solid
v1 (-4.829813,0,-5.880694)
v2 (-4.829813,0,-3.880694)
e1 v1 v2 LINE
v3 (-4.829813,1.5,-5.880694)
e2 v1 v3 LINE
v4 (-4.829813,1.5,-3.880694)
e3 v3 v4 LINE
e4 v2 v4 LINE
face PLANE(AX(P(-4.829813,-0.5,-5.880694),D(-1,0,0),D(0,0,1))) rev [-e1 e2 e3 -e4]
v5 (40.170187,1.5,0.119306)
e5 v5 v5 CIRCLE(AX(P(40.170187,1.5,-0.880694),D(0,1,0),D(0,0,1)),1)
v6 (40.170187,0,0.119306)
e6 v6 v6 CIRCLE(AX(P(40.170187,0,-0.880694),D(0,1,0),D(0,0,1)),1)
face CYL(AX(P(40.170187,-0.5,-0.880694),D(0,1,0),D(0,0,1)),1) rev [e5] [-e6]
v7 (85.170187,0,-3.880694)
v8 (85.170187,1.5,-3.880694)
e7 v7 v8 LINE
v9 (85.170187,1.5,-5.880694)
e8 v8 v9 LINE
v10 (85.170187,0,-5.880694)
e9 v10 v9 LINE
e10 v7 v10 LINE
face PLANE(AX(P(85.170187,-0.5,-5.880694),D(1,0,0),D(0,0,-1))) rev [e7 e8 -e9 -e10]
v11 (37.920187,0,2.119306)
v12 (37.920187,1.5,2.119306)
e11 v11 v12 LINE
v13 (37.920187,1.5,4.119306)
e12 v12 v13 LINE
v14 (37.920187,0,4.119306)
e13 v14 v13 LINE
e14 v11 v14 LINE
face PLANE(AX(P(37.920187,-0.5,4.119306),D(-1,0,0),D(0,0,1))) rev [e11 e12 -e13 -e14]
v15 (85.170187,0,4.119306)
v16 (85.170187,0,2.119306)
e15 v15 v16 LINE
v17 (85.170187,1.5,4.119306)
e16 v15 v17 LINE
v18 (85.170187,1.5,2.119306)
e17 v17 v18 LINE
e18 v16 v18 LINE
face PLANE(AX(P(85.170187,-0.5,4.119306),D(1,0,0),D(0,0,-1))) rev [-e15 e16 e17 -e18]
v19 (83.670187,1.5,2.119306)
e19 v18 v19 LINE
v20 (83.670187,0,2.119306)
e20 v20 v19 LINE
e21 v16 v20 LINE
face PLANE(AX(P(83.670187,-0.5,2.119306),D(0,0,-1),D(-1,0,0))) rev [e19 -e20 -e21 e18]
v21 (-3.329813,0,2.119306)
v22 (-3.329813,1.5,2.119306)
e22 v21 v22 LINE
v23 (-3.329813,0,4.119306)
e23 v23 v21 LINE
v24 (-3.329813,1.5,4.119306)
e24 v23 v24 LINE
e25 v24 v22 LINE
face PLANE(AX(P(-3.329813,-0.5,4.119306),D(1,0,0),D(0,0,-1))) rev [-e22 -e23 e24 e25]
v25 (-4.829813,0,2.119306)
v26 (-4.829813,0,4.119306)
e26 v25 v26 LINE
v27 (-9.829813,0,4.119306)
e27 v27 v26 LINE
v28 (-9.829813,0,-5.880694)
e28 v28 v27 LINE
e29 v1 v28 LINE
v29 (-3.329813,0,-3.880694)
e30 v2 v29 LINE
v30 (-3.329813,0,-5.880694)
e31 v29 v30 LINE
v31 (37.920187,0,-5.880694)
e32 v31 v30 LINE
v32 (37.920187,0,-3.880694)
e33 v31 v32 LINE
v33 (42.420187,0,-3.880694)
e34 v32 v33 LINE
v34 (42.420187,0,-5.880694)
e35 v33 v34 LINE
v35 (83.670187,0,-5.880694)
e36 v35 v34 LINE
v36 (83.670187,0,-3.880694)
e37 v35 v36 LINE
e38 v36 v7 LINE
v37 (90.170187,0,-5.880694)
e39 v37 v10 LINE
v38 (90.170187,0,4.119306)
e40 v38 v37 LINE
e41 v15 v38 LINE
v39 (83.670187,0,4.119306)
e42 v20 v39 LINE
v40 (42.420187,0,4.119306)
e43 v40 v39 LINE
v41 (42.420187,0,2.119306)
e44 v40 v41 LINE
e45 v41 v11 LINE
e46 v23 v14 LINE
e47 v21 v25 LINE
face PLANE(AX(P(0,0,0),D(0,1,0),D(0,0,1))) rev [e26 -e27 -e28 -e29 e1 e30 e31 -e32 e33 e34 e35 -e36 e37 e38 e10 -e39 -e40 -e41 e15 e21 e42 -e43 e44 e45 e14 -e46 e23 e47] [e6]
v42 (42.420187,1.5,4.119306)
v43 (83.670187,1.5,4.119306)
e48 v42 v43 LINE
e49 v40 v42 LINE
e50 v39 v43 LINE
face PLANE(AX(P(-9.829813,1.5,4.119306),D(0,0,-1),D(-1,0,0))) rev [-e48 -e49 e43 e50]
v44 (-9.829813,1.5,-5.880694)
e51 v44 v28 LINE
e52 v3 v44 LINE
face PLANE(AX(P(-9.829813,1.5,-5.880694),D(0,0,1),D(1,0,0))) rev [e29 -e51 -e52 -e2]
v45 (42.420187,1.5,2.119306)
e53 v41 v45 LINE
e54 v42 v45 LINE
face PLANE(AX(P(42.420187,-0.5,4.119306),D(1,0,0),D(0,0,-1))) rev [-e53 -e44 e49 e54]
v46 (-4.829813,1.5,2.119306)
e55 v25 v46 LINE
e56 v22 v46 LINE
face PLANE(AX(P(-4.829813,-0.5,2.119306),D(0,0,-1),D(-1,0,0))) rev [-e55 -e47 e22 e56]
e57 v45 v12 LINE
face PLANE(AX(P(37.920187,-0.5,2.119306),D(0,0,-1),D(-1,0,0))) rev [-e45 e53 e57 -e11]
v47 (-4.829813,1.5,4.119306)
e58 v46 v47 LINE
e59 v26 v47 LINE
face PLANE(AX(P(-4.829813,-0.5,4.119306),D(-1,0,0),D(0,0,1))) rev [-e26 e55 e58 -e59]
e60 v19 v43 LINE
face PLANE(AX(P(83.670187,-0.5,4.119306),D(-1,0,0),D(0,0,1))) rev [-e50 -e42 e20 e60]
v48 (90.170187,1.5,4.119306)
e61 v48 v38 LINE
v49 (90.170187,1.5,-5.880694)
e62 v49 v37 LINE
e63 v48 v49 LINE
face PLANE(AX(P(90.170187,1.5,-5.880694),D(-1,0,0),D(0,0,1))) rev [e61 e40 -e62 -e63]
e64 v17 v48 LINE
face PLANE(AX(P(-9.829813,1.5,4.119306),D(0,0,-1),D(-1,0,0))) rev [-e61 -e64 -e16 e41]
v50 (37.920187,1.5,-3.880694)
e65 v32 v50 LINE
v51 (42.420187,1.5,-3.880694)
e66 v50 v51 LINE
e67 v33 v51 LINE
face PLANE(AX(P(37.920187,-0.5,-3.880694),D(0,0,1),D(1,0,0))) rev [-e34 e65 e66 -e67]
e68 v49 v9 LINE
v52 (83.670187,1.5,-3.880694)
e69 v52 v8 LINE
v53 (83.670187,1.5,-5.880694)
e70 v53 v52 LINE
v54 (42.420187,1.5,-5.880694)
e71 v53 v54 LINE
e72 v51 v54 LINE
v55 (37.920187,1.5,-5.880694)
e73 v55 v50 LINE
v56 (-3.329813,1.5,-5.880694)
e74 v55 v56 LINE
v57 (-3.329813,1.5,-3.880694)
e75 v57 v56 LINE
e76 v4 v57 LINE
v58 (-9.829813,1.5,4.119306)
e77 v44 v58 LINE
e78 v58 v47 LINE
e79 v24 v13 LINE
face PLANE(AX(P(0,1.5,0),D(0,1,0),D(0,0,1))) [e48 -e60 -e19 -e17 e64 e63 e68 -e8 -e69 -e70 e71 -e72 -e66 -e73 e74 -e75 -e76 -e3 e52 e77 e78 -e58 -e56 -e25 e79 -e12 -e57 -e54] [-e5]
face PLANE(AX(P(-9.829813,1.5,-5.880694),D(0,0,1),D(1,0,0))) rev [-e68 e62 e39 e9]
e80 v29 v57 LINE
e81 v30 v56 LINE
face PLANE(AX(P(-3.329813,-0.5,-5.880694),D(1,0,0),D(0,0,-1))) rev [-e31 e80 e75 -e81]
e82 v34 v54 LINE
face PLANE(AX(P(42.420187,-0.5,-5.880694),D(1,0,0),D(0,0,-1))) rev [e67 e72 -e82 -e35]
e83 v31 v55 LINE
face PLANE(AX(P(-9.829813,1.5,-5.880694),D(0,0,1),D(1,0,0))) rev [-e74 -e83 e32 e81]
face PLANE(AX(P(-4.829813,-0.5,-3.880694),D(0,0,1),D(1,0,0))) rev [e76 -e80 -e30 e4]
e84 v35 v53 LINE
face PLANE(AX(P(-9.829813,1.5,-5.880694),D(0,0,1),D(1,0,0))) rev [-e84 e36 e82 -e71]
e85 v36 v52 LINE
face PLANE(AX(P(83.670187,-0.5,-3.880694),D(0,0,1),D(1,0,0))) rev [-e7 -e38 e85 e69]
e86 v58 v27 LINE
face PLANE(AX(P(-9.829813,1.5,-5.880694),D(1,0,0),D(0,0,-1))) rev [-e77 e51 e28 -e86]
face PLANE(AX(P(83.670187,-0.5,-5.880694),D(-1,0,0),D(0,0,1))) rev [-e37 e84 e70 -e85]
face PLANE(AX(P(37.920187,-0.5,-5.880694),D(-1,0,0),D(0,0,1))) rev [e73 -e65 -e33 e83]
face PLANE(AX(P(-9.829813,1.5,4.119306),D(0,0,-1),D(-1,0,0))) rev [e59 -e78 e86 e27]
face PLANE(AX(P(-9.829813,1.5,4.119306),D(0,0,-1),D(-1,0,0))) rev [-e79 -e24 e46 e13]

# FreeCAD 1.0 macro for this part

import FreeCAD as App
import Part
import Sketcher

V = App.Vector
Q = App.Units.Quantity


def add_polygon(sketch, points):
    """Adds a closed chain of lines whose ends are joined by coincident constraints."""
    first, n = sketch.GeometryCount, len(points)
    for a, b in zip(points, points[1:] + points[:1]):
        sketch.addGeometry(Part.LineSegment(App.Vector(*a, 0), App.Vector(*b, 0)), False)
    for i in range(n):
        sketch.addConstraint(Sketcher.Constraint("Coincident", first + i, 2, first + (i + 1) % n, 1))

doc = App.newDocument("Part")
body = doc.addObject("PartDesign::Body", "Body")

sketch1 = doc.addObject("Sketcher::SketchObject", "Sketch")
body.addObject(sketch1)
sketch1.AttachmentSupport = (doc.XZ_Plane, [""])
sketch1.MapMode = "FlatFace"
add_polygon(sketch1, [(-9.829813, -5.880694), (-9.829813, 4.119306), (90.170187, 4.119306), (90.170187, -5.880694)])
sketch1.addConstraint(Sketcher.Constraint("Vertical", 0))
sketch1.addConstraint(Sketcher.Constraint("Horizontal", 1))
sketch1.addConstraint(Sketcher.Constraint("Vertical", 2))
sketch1.addConstraint(Sketcher.Constraint("Horizontal", 3))
sketch1.addConstraint(Sketcher.Constraint("DistanceX", 1, 1, 1, 2, Q("100 mm")))
sketch1.addConstraint(Sketcher.Constraint("DistanceY", 0, 1, 0, 2, Q("10 mm")))
sketch1.addConstraint(Sketcher.Constraint("DistanceX", 0, 2, -1, 1, Q("9.829813 mm")))
sketch1.addConstraint(Sketcher.Constraint("DistanceY", -1, 1, 0, 2, Q("4.119306 mm")))
pad1 = doc.addObject("PartDesign::Pad", "Pad")
body.addObject(pad1)
pad1.Profile = sketch1
pad1.Length = 1.5
pad1.Reversed = True

sketch2 = doc.addObject("Sketcher::SketchObject", "Sketch001")
body.addObject(sketch2)
sketch2.AttachmentSupport = (doc.XZ_Plane, [""])
sketch2.MapMode = "FlatFace"
sketch2.AttachmentOffset = App.Placement(V(0, 0, -1.5), App.Rotation())
sketch2.addGeometry(Part.Circle(V(40.170187, -0.880694, 0), V(0, 0, 1), 1), False)
sketch2.addConstraint(Sketcher.Constraint("Diameter", 0, Q("2 mm")))
sketch2.addConstraint(Sketcher.Constraint("DistanceX", -1, 1, 0, 3, Q("40.170187 mm")))
sketch2.addConstraint(Sketcher.Constraint("DistanceY", 0, 3, -1, 1, Q("0.880694 mm")))
pocket1 = doc.addObject("PartDesign::Pocket", "Pocket")
body.addObject(pocket1)
pocket1.Profile = sketch2
pocket1.Length = 2
pocket1.Reversed = True

sketch3 = doc.addObject("Sketcher::SketchObject", "Sketch002")
body.addObject(sketch3)
sketch3.AttachmentSupport = (doc.XZ_Plane, [""])
sketch3.MapMode = "FlatFace"
sketch3.AttachmentOffset = App.Placement(V(0, 0, -1.5), App.Rotation())
add_polygon(sketch3, [(-4.829813, -5.880694), (-4.829813, -3.880694), (-3.329813, -3.880694), (-3.329813, -5.880694)])
add_polygon(sketch3, [(37.920187, -5.880694), (37.920187, -3.880694), (42.420187, -3.880694), (42.420187, -5.880694)])
add_polygon(sketch3, [(83.670187, -5.880694), (83.670187, -3.880694), (85.170187, -3.880694), (85.170187, -5.880694)])
add_polygon(sketch3, [(-4.829813, 2.119306), (-4.829813, 4.119306), (-3.329813, 4.119306), (-3.329813, 2.119306)])
add_polygon(sketch3, [(37.920187, 2.119306), (37.920187, 4.119306), (42.420187, 4.119306), (42.420187, 2.119306)])
add_polygon(sketch3, [(83.670187, 2.119306), (83.670187, 4.119306), (85.170187, 4.119306), (85.170187, 2.119306)])
sketch3.addConstraint(Sketcher.Constraint("Vertical", 0))
sketch3.addConstraint(Sketcher.Constraint("Horizontal", 1))
sketch3.addConstraint(Sketcher.Constraint("Vertical", 2))
sketch3.addConstraint(Sketcher.Constraint("Horizontal", 3))
sketch3.addConstraint(Sketcher.Constraint("Vertical", 4))
sketch3.addConstraint(Sketcher.Constraint("Horizontal", 5))
sketch3.addConstraint(Sketcher.Constraint("Vertical", 6))
sketch3.addConstraint(Sketcher.Constraint("Horizontal", 7))
sketch3.addConstraint(Sketcher.Constraint("Vertical", 8))
sketch3.addConstraint(Sketcher.Constraint("Horizontal", 9))
sketch3.addConstraint(Sketcher.Constraint("Vertical", 10))
sketch3.addConstraint(Sketcher.Constraint("Horizontal", 11))
sketch3.addConstraint(Sketcher.Constraint("Vertical", 12))
sketch3.addConstraint(Sketcher.Constraint("Horizontal", 13))
sketch3.addConstraint(Sketcher.Constraint("Vertical", 14))
sketch3.addConstraint(Sketcher.Constraint("Horizontal", 15))
sketch3.addConstraint(Sketcher.Constraint("Vertical", 16))
sketch3.addConstraint(Sketcher.Constraint("Horizontal", 17))
sketch3.addConstraint(Sketcher.Constraint("Vertical", 18))
sketch3.addConstraint(Sketcher.Constraint("Horizontal", 19))
sketch3.addConstraint(Sketcher.Constraint("Vertical", 20))
sketch3.addConstraint(Sketcher.Constraint("Horizontal", 21))
sketch3.addConstraint(Sketcher.Constraint("Vertical", 22))
sketch3.addConstraint(Sketcher.Constraint("Horizontal", 23))
sketch3.addConstraint(Sketcher.Constraint("Horizontal", 1, 2, 4, 2))
sketch3.addConstraint(Sketcher.Constraint("Horizontal", 3, 2, 6, 2))
sketch3.addConstraint(Sketcher.Constraint("Horizontal", 5, 2, 8, 2))
sketch3.addConstraint(Sketcher.Constraint("Horizontal", 7, 2, 10, 2))
sketch3.addConstraint(Sketcher.Constraint("Horizontal", 13, 2, 16, 2))
sketch3.addConstraint(Sketcher.Constraint("Horizontal", 15, 2, 18, 2))
sketch3.addConstraint(Sketcher.Constraint("Horizontal", 17, 2, 20, 2))
sketch3.addConstraint(Sketcher.Constraint("Horizontal", 19, 2, 22, 2))
sketch3.addConstraint(Sketcher.Constraint("Vertical", 3, 2, 12, 2))
sketch3.addConstraint(Sketcher.Constraint("Vertical", 2, 2, 13, 2))
sketch3.addConstraint(Sketcher.Constraint("Vertical", 7, 2, 16, 2))
sketch3.addConstraint(Sketcher.Constraint("Vertical", 6, 2, 17, 2))
sketch3.addConstraint(Sketcher.Constraint("Vertical", 11, 2, 20, 2))
sketch3.addConstraint(Sketcher.Constraint("Vertical", 10, 2, 21, 2))
sketch3.addConstraint(Sketcher.Constraint("Equal", 3, 9))
sketch3.addConstraint(Sketcher.Constraint("Equal", 10, 12))
sketch3.addConstraint(Sketcher.Constraint("DistanceY", 0, 1, 0, 2, Q("2 mm")))
sketch3.addConstraint(Sketcher.Constraint("DistanceX", 1, 1, 1, 2, Q("1.5 mm")))
sketch3.addConstraint(Sketcher.Constraint("DistanceX", 5, 1, 5, 2, Q("4.5 mm")))
sketch3.addConstraint(Sketcher.Constraint("DistanceX", 1, 2, 8, 2, Q("87 mm")))
sketch3.addConstraint(Sketcher.Constraint("DistanceY", 0, 2, 12, 2, Q("8 mm")))
sketch3.addConstraint(Sketcher.Constraint("DistanceX", 1, 2, 4, 2, Q("41.25 mm")))
sketch3.addConstraint(Sketcher.Constraint("DistanceX", 0, 2, -1, 1, Q("4.829813 mm")))
sketch3.addConstraint(Sketcher.Constraint("DistanceY", 0, 2, -1, 1, Q("3.880694 mm")))
pocket2 = doc.addObject("PartDesign::Pocket", "Pocket001")
body.addObject(pocket2)
pocket2.Profile = sketch3
pocket2.Length = 2
pocket2.Reversed = True

doc.recompute()
